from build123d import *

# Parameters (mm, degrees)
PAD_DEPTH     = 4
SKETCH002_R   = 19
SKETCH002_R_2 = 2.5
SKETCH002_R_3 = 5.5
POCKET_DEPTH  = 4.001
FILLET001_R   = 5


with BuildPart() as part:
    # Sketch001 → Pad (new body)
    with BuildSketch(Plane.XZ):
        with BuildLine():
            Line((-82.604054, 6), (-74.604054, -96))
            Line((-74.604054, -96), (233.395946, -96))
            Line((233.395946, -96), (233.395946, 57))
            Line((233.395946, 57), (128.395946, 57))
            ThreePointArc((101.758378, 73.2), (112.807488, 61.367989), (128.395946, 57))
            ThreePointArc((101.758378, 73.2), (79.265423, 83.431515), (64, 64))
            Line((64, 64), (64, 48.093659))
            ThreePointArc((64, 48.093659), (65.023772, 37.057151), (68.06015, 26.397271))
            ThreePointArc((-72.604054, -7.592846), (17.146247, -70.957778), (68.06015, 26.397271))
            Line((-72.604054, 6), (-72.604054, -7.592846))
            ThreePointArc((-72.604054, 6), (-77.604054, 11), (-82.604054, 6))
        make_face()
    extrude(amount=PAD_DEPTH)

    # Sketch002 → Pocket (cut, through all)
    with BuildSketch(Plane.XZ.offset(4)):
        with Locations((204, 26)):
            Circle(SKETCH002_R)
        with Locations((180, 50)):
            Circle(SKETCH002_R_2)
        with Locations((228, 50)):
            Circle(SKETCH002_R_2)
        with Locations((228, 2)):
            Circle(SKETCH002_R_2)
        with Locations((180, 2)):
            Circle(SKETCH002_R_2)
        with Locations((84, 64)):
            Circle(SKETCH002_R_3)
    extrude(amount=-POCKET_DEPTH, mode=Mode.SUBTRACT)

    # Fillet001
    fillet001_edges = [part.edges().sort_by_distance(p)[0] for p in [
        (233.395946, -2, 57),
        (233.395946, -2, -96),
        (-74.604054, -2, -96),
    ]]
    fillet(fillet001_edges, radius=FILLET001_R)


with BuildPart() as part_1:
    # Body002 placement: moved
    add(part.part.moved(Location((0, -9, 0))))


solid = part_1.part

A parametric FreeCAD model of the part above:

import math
import FreeCAD as App
import Part
import Sketcher


def edges_at(feature, points):
    """Names of the edges that pass closest to the given points."""
    edges = feature.Shape.Edges
    near = lambda p: min(range(len(edges)), key=lambda i: edges[i].distToShape(Part.Vertex(*p))[0])
    return sorted({f"Edge{near(p) + 1}" for p in points})

doc = App.newDocument("Part")
body = doc.addObject("PartDesign::Body", "Body")

# Sketch on XZ plane
sketch1 = body.newObject("Sketcher::SketchObject", "Sketch")
sketch1.AttachmentSupport = (doc.getObject("XZ_Plane"), [""])
sketch1.MapMode = "FlatFace"
sketch1.addGeometry(Part.LineSegment(App.Vector(-83, 6, 0), App.Vector(-75, -96, 0)), False)
sketch1.addGeometry(Part.LineSegment(App.Vector(-75, -96, 0), App.Vector(233, -96, 0)), False)
sketch1.addGeometry(Part.LineSegment(App.Vector(233, -96, 0), App.Vector(233, 57, 0)), False)
sketch1.addGeometry(Part.LineSegment(App.Vector(233, 57, 0), App.Vector(128, 57, 0)), False)
sketch1.addGeometry(Part.ArcOfCircle(Part.Circle(App.Vector(128, 87, 0), App.Vector(0, 0, 1), 30), math.radians(-153), math.radians(-90)), False)
sketch1.addGeometry(Part.ArcOfCircle(Part.Circle(App.Vector(84, 64, 0), App.Vector(0, 0, 1), 20), math.radians(27), math.radians(180)), False)
sketch1.addGeometry(Part.LineSegment(App.Vector(64, 64, 0), App.Vector(64, 48, 0)), False)
sketch1.addGeometry(Part.ArcOfCircle(Part.Circle(App.Vector(124, 48, 0), App.Vector(0, 0, 1), 60), math.radians(-180), math.radians(-159)), False)
sketch1.addGeometry(Part.ArcOfCircle(Part.Circle(App.Vector(0, 0, 0), App.Vector(0, 0, 1), 73), math.radians(-174), math.radians(21)), False)
sketch1.addGeometry(Part.LineSegment(App.Vector(-73, -8, 0), App.Vector(-73, 6, 0)), False)
sketch1.addGeometry(Part.ArcOfCircle(Part.Circle(App.Vector(-78, 6, 0), App.Vector(0, 0, 1), 5), math.radians(0), math.radians(180)), False)
sketch1.addConstraint(Sketcher.Constraint("Coincident", 0, 2, 1, 1))
sketch1.addConstraint(Sketcher.Constraint("Coincident", 1, 2, 2, 1))
sketch1.addConstraint(Sketcher.Constraint("Coincident", 2, 2, 3, 1))
sketch1.addConstraint(Sketcher.Constraint("Tangent", 3, 2, 4, 2))
sketch1.addConstraint(Sketcher.Constraint("Tangent", 4, 1, 5, 1))
sketch1.addConstraint(Sketcher.Constraint("Tangent", 5, 2, 6, 1))
sketch1.addConstraint(Sketcher.Constraint("Tangent", 6, 2, 7, 1))
sketch1.addConstraint(Sketcher.Constraint("Tangent", 7, 2, 8, 2))
sketch1.addConstraint(Sketcher.Constraint("Coincident", 8, 1, 9, 1))
sketch1.addConstraint(Sketcher.Constraint("Tangent", 9, 2, 10, 1))
sketch1.addConstraint(Sketcher.Constraint("Coincident", 10, 2, 0, 1))
sketch1.addConstraint(Sketcher.Constraint("Horizontal", 1))
sketch1.addConstraint(Sketcher.Constraint("Vertical", 2))
sketch1.addConstraint(Sketcher.Constraint("Horizontal", 3))
sketch1.addConstraint(Sketcher.Constraint("Vertical", 6))
sketch1.addConstraint(Sketcher.Constraint("Vertical", 9))
sketch1.addConstraint(Sketcher.Constraint("Coincident", 8, 3, -1, 1))
sketch1.addConstraint(Sketcher.Constraint("Horizontal", 9, 2, 10, 2))
sketch1.addConstraint(Sketcher.Constraint("Radius", 4, 30.000001))
sketch1.addConstraint(Sketcher.Constraint("Radius", 5, 20.0))
sketch1.addConstraint(Sketcher.Constraint("Radius", 8, 73.0))
sketch1.addConstraint(Sketcher.Constraint("Radius", 10, 5.0))
sketch1.addConstraint(Sketcher.Constraint("DistanceX", 1, 1, 1, 2, 308.0))
sketch1.addConstraint(Sketcher.Constraint("DistanceX", 3, 2, 3, 1, 105.0))
sketch1.addConstraint(Sketcher.Constraint("DistanceY", 2, 1, 2, 2, 153.0))
sketch1.addConstraint(Sketcher.Constraint("DistanceY", -1, 1, 4, 3, 87.000001))
sketch1.addConstraint(Sketcher.Constraint("DistanceX", -1, 1, 5, 3, 84.0))
sketch1.addConstraint(Sketcher.Constraint("DistanceY", -1, 1, 5, 3, 64.0))
sketch1.addConstraint(Sketcher.Constraint("DistanceY", -1, 1, 10, 3, 6.0))
sketch1.addConstraint(Sketcher.Constraint("DistanceX", 10, 3, 4, 3, 206.0))
sketch1.addConstraint(Sketcher.Constraint("Radius", 7, 60.000028))
pad1 = body.newObject("PartDesign::Pad", "Pad")
pad1.Profile = sketch1
pad1.Length = 4

# Sketch on XZ plane
sketch2 = body.newObject("Sketcher::SketchObject", "Sketch001")
sketch2.AttachmentSupport = (doc.getObject("XZ_Plane"), [""])
sketch2.MapMode = "FlatFace"
sketch2.AttachmentOffset = App.Placement(App.Vector(0, 0, 4), App.Rotation())
sketch2.addGeometry(Part.Circle(App.Vector(204, 26, 0), App.Vector(0, 0, 1), 19), False)
sketch2.addGeometry(Part.Circle(App.Vector(180, 50, 0), App.Vector(0, 0, 1), 2.5), False)
sketch2.addGeometry(Part.Circle(App.Vector(228, 50, 0), App.Vector(0, 0, 1), 2.5), False)
sketch2.addGeometry(Part.Circle(App.Vector(228, 2, 0), App.Vector(0, 0, 1), 2.5), False)
sketch2.addGeometry(Part.Circle(App.Vector(180, 2, 0), App.Vector(0, 0, 1), 2.5), False)
sketch2.addGeometry(Part.Circle(App.Vector(84, 64, 0), App.Vector(0, 0, 1), 5.5), False)
sketch2.addConstraint(Sketcher.Constraint("Equal", 1, 2))
sketch2.addConstraint(Sketcher.Constraint("Equal", 2, 3))
sketch2.addConstraint(Sketcher.Constraint("Equal", 3, 4))
sketch2.addConstraint(Sketcher.Constraint("Horizontal", 1, 3, 2, 3))
sketch2.addConstraint(Sketcher.Constraint("Horizontal", 3, 3, 4, 3))
sketch2.addConstraint(Sketcher.Constraint("Vertical", 2, 3, 3, 3))
sketch2.addConstraint(Sketcher.Constraint("Vertical", 1, 3, 4, 3))
sketch2.addConstraint(Sketcher.Constraint("Diameter", 0, 38.0))
sketch2.addConstraint(Sketcher.Constraint("Diameter", 1, 5.0))
sketch2.addConstraint(Sketcher.Constraint("Diameter", 5, 11.0))
sketch2.addConstraint(Sketcher.Constraint("DistanceX", -1, 1, 0, 3, 204.0))
sketch2.addConstraint(Sketcher.Constraint("DistanceY", -1, 1, 0, 3, 26.0))
sketch2.addConstraint(Sketcher.Constraint("DistanceX", -1, 1, 1, 3, 180.0))
sketch2.addConstraint(Sketcher.Constraint("DistanceY", -1, 1, 1, 3, 50.0))
sketch2.addConstraint(Sketcher.Constraint("DistanceX", -1, 1, 2, 3, 228.0))
sketch2.addConstraint(Sketcher.Constraint("DistanceY", -1, 1, 3, 3, 2.0))
sketch2.addConstraint(Sketcher.Constraint("DistanceX", -1, 1, 5, 3, 84.0))
sketch2.addConstraint(Sketcher.Constraint("DistanceY", -1, 1, 5, 3, 64.0))
pocket1 = body.newObject("PartDesign::Pocket", "Pocket")
pocket1.Profile = sketch2
pocket1.Type = "ThroughAll"
doc.recompute()

fillet = body.newObject("PartDesign::Fillet", "Fillet")
fillet.Base = (pocket1, edges_at(pocket1, [(233.396, -2, 57), (233.396, -2, -96), (-74.604, -2, -96)]))
fillet.Radius = 5
body2 = doc.addObject("PartDesign::Body", "Body001")
doc.recompute()

body.Placement = App.Placement(App.Vector(0, -9, 0), App.Rotation(App.Vector(0, 0, 1), 0))
boolean = body2.newObject("PartDesign::Boolean", "Boolean")
boolean.Type = "Fuse"
boolean.addObjects([body])

doc.recompute()
